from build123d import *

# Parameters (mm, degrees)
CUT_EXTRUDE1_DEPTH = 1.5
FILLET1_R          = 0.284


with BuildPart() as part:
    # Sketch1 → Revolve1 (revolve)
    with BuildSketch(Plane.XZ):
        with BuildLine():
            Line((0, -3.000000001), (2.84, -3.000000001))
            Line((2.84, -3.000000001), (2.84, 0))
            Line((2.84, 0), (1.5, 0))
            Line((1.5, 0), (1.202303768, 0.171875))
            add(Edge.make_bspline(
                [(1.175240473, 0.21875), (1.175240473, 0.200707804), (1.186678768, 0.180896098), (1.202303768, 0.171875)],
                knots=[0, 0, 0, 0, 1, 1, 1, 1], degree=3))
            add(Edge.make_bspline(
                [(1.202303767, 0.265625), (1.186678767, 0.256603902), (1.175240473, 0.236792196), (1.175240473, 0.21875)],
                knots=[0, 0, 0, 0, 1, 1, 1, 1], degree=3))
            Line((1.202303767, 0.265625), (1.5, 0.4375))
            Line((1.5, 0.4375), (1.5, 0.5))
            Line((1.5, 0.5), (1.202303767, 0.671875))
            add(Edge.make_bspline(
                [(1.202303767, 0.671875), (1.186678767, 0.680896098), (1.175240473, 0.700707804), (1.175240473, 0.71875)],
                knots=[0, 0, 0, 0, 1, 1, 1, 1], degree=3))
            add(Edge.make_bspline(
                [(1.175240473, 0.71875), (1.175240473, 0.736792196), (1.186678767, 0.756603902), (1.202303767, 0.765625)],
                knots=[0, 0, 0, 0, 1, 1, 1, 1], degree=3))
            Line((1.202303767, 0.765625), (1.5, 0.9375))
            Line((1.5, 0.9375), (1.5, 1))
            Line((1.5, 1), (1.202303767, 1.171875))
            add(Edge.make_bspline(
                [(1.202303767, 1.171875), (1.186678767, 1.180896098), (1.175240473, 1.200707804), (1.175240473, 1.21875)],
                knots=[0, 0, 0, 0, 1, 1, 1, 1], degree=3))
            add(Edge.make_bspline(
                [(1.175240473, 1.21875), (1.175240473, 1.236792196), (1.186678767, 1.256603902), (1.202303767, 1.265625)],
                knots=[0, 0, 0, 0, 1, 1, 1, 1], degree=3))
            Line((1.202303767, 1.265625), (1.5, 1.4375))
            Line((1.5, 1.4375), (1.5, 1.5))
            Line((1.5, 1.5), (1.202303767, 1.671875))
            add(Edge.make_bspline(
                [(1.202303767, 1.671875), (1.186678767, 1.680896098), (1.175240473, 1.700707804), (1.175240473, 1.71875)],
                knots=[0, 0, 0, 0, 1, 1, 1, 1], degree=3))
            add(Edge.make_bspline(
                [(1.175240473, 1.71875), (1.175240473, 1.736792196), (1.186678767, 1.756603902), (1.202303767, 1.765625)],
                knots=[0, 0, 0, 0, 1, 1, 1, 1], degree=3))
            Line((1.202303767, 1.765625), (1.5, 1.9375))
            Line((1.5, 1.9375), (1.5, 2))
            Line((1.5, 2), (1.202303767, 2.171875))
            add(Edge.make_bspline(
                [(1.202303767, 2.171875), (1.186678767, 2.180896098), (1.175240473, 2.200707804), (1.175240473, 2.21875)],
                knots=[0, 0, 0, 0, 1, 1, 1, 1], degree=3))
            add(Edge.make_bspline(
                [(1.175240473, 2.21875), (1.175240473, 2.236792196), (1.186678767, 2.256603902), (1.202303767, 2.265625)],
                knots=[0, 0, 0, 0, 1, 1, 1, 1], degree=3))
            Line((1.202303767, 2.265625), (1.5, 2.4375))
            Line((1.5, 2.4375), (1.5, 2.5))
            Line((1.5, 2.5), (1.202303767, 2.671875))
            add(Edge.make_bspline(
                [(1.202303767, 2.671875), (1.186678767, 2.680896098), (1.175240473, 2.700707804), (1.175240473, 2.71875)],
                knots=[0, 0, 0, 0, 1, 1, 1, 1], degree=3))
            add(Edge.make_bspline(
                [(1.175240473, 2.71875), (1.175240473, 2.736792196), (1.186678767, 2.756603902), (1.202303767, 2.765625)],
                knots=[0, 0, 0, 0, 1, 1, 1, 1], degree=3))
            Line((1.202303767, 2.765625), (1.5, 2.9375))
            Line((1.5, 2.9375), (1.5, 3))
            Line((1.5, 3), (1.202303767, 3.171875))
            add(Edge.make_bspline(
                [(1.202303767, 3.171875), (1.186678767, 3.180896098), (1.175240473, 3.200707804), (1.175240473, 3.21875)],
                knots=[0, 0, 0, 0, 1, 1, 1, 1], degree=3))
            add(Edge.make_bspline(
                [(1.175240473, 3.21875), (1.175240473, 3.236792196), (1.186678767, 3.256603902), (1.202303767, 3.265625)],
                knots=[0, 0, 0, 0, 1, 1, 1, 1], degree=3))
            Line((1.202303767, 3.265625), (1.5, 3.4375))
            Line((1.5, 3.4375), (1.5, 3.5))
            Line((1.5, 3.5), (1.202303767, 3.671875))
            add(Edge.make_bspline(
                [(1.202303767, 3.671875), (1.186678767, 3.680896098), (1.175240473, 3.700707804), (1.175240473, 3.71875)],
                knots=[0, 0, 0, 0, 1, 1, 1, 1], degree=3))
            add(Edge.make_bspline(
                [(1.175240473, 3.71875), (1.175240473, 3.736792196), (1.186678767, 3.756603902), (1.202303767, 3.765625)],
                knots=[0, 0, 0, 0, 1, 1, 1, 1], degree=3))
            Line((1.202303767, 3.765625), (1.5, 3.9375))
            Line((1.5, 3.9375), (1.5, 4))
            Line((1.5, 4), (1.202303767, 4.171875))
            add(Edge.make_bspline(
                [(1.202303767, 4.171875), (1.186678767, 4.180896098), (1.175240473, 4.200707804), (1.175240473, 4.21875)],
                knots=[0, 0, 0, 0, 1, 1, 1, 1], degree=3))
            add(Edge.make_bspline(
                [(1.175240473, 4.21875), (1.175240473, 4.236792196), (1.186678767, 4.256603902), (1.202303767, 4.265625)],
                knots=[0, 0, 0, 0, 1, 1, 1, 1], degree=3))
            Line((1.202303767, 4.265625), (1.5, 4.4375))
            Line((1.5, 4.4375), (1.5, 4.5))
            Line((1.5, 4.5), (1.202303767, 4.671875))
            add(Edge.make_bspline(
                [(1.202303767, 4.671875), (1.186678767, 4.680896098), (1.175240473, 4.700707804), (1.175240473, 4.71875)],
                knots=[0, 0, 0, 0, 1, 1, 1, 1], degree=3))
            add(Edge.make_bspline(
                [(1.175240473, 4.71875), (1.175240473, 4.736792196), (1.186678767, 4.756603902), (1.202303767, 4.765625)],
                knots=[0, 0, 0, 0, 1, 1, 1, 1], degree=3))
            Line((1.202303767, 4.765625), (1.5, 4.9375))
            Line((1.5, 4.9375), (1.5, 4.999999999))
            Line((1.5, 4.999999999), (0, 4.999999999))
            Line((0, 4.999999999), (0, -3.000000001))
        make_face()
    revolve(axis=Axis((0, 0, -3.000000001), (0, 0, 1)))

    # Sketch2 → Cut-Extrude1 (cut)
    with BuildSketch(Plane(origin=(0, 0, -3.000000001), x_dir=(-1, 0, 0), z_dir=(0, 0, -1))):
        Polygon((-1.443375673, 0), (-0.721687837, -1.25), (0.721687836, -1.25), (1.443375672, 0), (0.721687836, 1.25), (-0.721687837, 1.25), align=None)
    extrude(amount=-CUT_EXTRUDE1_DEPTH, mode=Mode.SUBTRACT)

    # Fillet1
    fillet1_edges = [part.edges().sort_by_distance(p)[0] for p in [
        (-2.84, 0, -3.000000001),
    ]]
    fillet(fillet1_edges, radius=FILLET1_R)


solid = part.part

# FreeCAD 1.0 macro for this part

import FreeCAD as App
import Part
import Sketcher
Q = App.Units.Quantity


def edges_at(feature, points):
    """Names of the edges that pass closest to the given points."""
    edges = feature.Shape.Edges
    near = lambda p: min(range(len(edges)), key=lambda i: edges[i].distToShape(Part.Vertex(*p))[0])
    return sorted({f"Edge{near(p) + 1}" for p in points})


def add_polygon(sketch, points):
    """Adds a closed chain of lines whose ends are joined by coincident constraints."""
    first, n = sketch.GeometryCount, len(points)
    for a, b in zip(points, points[1:] + points[:1]):
        sketch.addGeometry(Part.LineSegment(App.Vector(*a, 0), App.Vector(*b, 0)), False)
    for i in range(n):
        sketch.addConstraint(Sketcher.Constraint("Coincident", first + i, 2, first + (i + 1) % n, 1))

doc = App.newDocument("Part")
params = doc.addObject("Spreadsheet::Sheet", "Params")
for row, (alias, value) in enumerate([
    ("sketch1_height", "3 mm"),
    ("sketch1_height2", "8 mm"),
    ("sketch1_width", "1.5 mm"),
    ("sketch1_width2", "2.84 mm"),
    ("sketch1_width3", "1.34 mm"),
    ("revolution_angle", "360 deg"),
    ("pocket1_length", "1.5 mm"),
    ("fillet_radius", "0.284 mm"),
], start=1):
    params.set(f"A{row}", alias)
    params.set(f"B{row}", "=" + value)
    params.setAlias(f"B{row}", alias)

body = doc.addObject("PartDesign::Body", "Body")

sketch1 = body.newObject("Sketcher::SketchObject", "Sketch")
sketch1.AttachmentSupport = (doc.getObject("XZ_Plane"), [""])
sketch1.MapMode = "FlatFace"
sketch1.addGeometry([
    Part.LineSegment(App.Vector(0, -3, 0), App.Vector(2.84, -3, 0)),
    Part.LineSegment(App.Vector(2.84, -3, 0), App.Vector(2.84, 0, 0)),
    Part.LineSegment(App.Vector(2.84, 0, 0), App.Vector(1.5, 0, 0)),
    Part.LineSegment(App.Vector(1.5, 0, 0), App.Vector(1.202304, 0.171875, 0)),
    Part.BSplineCurve([App.Vector(1.202304, 0.265625, 0), App.Vector(1.186679, 0.256604, 0), App.Vector(1.17524, 0.236792, 0), App.Vector(1.17524, 0.200708, 0), App.Vector(1.186679, 0.180896, 0), App.Vector(1.202304, 0.171875, 0)], [4, 2, 4], [0, 1, 2], False, 3, [1, 1, 1, 1, 1, 1], False),
    Part.LineSegment(App.Vector(1.202304, 0.265625, 0), App.Vector(1.5, 0.4375, 0)),
    Part.LineSegment(App.Vector(1.5, 0.4375, 0), App.Vector(1.5, 0.5, 0)),
    Part.LineSegment(App.Vector(1.5, 0.5, 0), App.Vector(1.202304, 0.671875, 0)),
    Part.BSplineCurve([App.Vector(1.202304, 0.671875, 0), App.Vector(1.186679, 0.680896, 0), App.Vector(1.17524, 0.700708, 0), App.Vector(1.17524, 0.736792, 0), App.Vector(1.186679, 0.756604, 0), App.Vector(1.202304, 0.765625, 0)], [4, 2, 4], [0, 1, 2], False, 3, [1, 1, 1, 1, 1, 1], False),
    Part.LineSegment(App.Vector(1.202304, 0.765625, 0), App.Vector(1.5, 0.9375, 0)),
    Part.LineSegment(App.Vector(1.5, 0.9375, 0), App.Vector(1.5, 1, 0)),
    Part.LineSegment(App.Vector(1.5, 1, 0), App.Vector(1.202304, 1.171875, 0)),
    Part.BSplineCurve([App.Vector(1.202304, 1.171875, 0), App.Vector(1.186679, 1.180896, 0), App.Vector(1.17524, 1.200708, 0), App.Vector(1.17524, 1.236792, 0), App.Vector(1.186679, 1.256604, 0), App.Vector(1.202304, 1.265625, 0)], [4, 2, 4], [0, 1, 2], False, 3, [1, 1, 1, 1, 1, 1], False),
    Part.LineSegment(App.Vector(1.202304, 1.265625, 0), App.Vector(1.5, 1.4375, 0)),
    Part.LineSegment(App.Vector(1.5, 1.4375, 0), App.Vector(1.5, 1.5, 0)),
    Part.LineSegment(App.Vector(1.5, 1.5, 0), App.Vector(1.202304, 1.671875, 0)),
    Part.BSplineCurve([App.Vector(1.202304, 1.671875, 0), App.Vector(1.186679, 1.680896, 0), App.Vector(1.17524, 1.700708, 0), App.Vector(1.17524, 1.736792, 0), App.Vector(1.186679, 1.756604, 0), App.Vector(1.202304, 1.765625, 0)], [4, 2, 4], [0, 1, 2], False, 3, [1, 1, 1, 1, 1, 1], False),
    Part.LineSegment(App.Vector(1.202304, 1.765625, 0), App.Vector(1.5, 1.9375, 0)),
    Part.LineSegment(App.Vector(1.5, 1.9375, 0), App.Vector(1.5, 2, 0)),
    Part.LineSegment(App.Vector(1.5, 2, 0), App.Vector(1.202304, 2.171875, 0)),
    Part.BSplineCurve([App.Vector(1.202304, 2.171875, 0), App.Vector(1.186679, 2.180896, 0), App.Vector(1.17524, 2.200708, 0), App.Vector(1.17524, 2.236792, 0), App.Vector(1.186679, 2.256604, 0), App.Vector(1.202304, 2.265625, 0)], [4, 2, 4], [0, 1, 2], False, 3, [1, 1, 1, 1, 1, 1], False),
    Part.LineSegment(App.Vector(1.202304, 2.265625, 0), App.Vector(1.5, 2.4375, 0)),
    Part.LineSegment(App.Vector(1.5, 2.4375, 0), App.Vector(1.5, 2.5, 0)),
    Part.LineSegment(App.Vector(1.5, 2.5, 0), App.Vector(1.202304, 2.671875, 0)),
    Part.BSplineCurve([App.Vector(1.202304, 2.671875, 0), App.Vector(1.186679, 2.680896, 0), App.Vector(1.17524, 2.700708, 0), App.Vector(1.17524, 2.736792, 0), App.Vector(1.186679, 2.756604, 0), App.Vector(1.202304, 2.765625, 0)], [4, 2, 4], [0, 1, 2], False, 3, [1, 1, 1, 1, 1, 1], False),
    Part.LineSegment(App.Vector(1.202304, 2.765625, 0), App.Vector(1.5, 2.9375, 0)),
    Part.LineSegment(App.Vector(1.5, 2.9375, 0), App.Vector(1.5, 3, 0)),
    Part.LineSegment(App.Vector(1.5, 3, 0), App.Vector(1.202304, 3.171875, 0)),
    Part.BSplineCurve([App.Vector(1.202304, 3.171875, 0), App.Vector(1.186679, 3.180896, 0), App.Vector(1.17524, 3.200708, 0), App.Vector(1.17524, 3.236792, 0), App.Vector(1.186679, 3.256604, 0), App.Vector(1.202304, 3.265625, 0)], [4, 2, 4], [0, 1, 2], False, 3, [1, 1, 1, 1, 1, 1], False),
    Part.LineSegment(App.Vector(1.202304, 3.265625, 0), App.Vector(1.5, 3.4375, 0)),
    Part.LineSegment(App.Vector(1.5, 3.4375, 0), App.Vector(1.5, 3.5, 0)),
    Part.LineSegment(App.Vector(1.5, 3.5, 0), App.Vector(1.202304, 3.671875, 0)),
    Part.BSplineCurve([App.Vector(1.202304, 3.671875, 0), App.Vector(1.186679, 3.680896, 0), App.Vector(1.17524, 3.700708, 0), App.Vector(1.17524, 3.736792, 0), App.Vector(1.186679, 3.756604, 0), App.Vector(1.202304, 3.765625, 0)], [4, 2, 4], [0, 1, 2], False, 3, [1, 1, 1, 1, 1, 1], False),
    Part.LineSegment(App.Vector(1.202304, 3.765625, 0), App.Vector(1.5, 3.9375, 0)),
    Part.LineSegment(App.Vector(1.5, 3.9375, 0), App.Vector(1.5, 4, 0)),
    Part.LineSegment(App.Vector(1.5, 4, 0), App.Vector(1.202304, 4.171875, 0)),
    Part.BSplineCurve([App.Vector(1.202304, 4.171875, 0), App.Vector(1.186679, 4.180896, 0), App.Vector(1.17524, 4.200708, 0), App.Vector(1.17524, 4.236792, 0), App.Vector(1.186679, 4.256604, 0), App.Vector(1.202304, 4.265625, 0)], [4, 2, 4], [0, 1, 2], False, 3, [1, 1, 1, 1, 1, 1], False),
    Part.LineSegment(App.Vector(1.202304, 4.265625, 0), App.Vector(1.5, 4.4375, 0)),
    Part.LineSegment(App.Vector(1.5, 4.4375, 0), App.Vector(1.5, 4.5, 0)),
    Part.LineSegment(App.Vector(1.5, 4.5, 0), App.Vector(1.202304, 4.671875, 0)),
    Part.BSplineCurve([App.Vector(1.202304, 4.671875, 0), App.Vector(1.186679, 4.680896, 0), App.Vector(1.17524, 4.700708, 0), App.Vector(1.17524, 4.736792, 0), App.Vector(1.186679, 4.756604, 0), App.Vector(1.202304, 4.765625, 0)], [4, 2, 4], [0, 1, 2], False, 3, [1, 1, 1, 1, 1, 1], False),
    Part.LineSegment(App.Vector(1.202304, 4.765625, 0), App.Vector(1.5, 4.9375, 0)),
    Part.LineSegment(App.Vector(1.5, 4.9375, 0), App.Vector(1.5, 5, 0)),
    Part.LineSegment(App.Vector(1.5, 5, 0), App.Vector(0, 5, 0)),
    Part.LineSegment(App.Vector(0, 5, 0), App.Vector(0, -3, 0)),
], False)
sketch1.addConstraint([
    Sketcher.Constraint("Block", 4),
    Sketcher.Constraint("Block", 8),
    Sketcher.Constraint("Block", 12),
    Sketcher.Constraint("Block", 16),
    Sketcher.Constraint("Block", 20),
    Sketcher.Constraint("Block", 24),
    Sketcher.Constraint("Block", 28),
    Sketcher.Constraint("Block", 32),
    Sketcher.Constraint("Block", 36),
    Sketcher.Constraint("Block", 40),
    Sketcher.Constraint("Coincident", 0, 2, 1, 1),
    Sketcher.Constraint("Coincident", 1, 2, 2, 1),
    Sketcher.Constraint("Coincident", 2, 2, 3, 1),
    Sketcher.Constraint("Coincident", 3, 2, 4, 2),
    Sketcher.Constraint("Coincident", 4, 1, 5, 1),
    Sketcher.Constraint("Coincident", 5, 2, 6, 1),
    Sketcher.Constraint("Coincident", 6, 2, 7, 1),
    Sketcher.Constraint("Coincident", 7, 2, 8, 1),
    Sketcher.Constraint("Coincident", 8, 2, 9, 1),
    Sketcher.Constraint("Coincident", 9, 2, 10, 1),
    Sketcher.Constraint("Coincident", 10, 2, 11, 1),
    Sketcher.Constraint("Coincident", 11, 2, 12, 1),
    Sketcher.Constraint("Coincident", 12, 2, 13, 1),
    Sketcher.Constraint("Coincident", 13, 2, 14, 1),
    Sketcher.Constraint("Coincident", 14, 2, 15, 1),
    Sketcher.Constraint("Coincident", 15, 2, 16, 1),
    Sketcher.Constraint("Coincident", 16, 2, 17, 1),
    Sketcher.Constraint("Coincident", 17, 2, 18, 1),
    Sketcher.Constraint("Coincident", 18, 2, 19, 1),
    Sketcher.Constraint("Coincident", 19, 2, 20, 1),
    Sketcher.Constraint("Coincident", 20, 2, 21, 1),
    Sketcher.Constraint("Coincident", 21, 2, 22, 1),
    Sketcher.Constraint("Coincident", 22, 2, 23, 1),
    Sketcher.Constraint("Coincident", 23, 2, 24, 1),
    Sketcher.Constraint("Coincident", 24, 2, 25, 1),
    Sketcher.Constraint("Coincident", 25, 2, 26, 1),
    Sketcher.Constraint("Coincident", 26, 2, 27, 1),
    Sketcher.Constraint("Coincident", 27, 2, 28, 1),
    Sketcher.Constraint("Coincident", 28, 2, 29, 1),
    Sketcher.Constraint("Coincident", 29, 2, 30, 1),
    Sketcher.Constraint("Coincident", 30, 2, 31, 1),
    Sketcher.Constraint("Coincident", 31, 2, 32, 1),
    Sketcher.Constraint("Coincident", 32, 2, 33, 1),
    Sketcher.Constraint("Coincident", 33, 2, 34, 1),
    Sketcher.Constraint("Coincident", 34, 2, 35, 1),
    Sketcher.Constraint("Coincident", 35, 2, 36, 1),
    Sketcher.Constraint("Coincident", 36, 2, 37, 1),
    Sketcher.Constraint("Coincident", 37, 2, 38, 1),
    Sketcher.Constraint("Coincident", 38, 2, 39, 1),
    Sketcher.Constraint("Coincident", 39, 2, 40, 1),
    Sketcher.Constraint("Coincident", 40, 2, 41, 1),
    Sketcher.Constraint("Coincident", 41, 2, 42, 1),
    Sketcher.Constraint("Coincident", 42, 2, 43, 1),
    Sketcher.Constraint("Coincident", 43, 2, 44, 1),
    Sketcher.Constraint("Coincident", 44, 2, 0, 1),
    Sketcher.Constraint("Horizontal", 0),
    Sketcher.Constraint("Vertical", 1),
    Sketcher.Constraint("Horizontal", 2),
    Sketcher.Constraint("Vertical", 6),
    Sketcher.Constraint("Vertical", 10),
    Sketcher.Constraint("Vertical", 14),
    Sketcher.Constraint("Vertical", 18),
    Sketcher.Constraint("Vertical", 22),
    Sketcher.Constraint("Vertical", 26),
    Sketcher.Constraint("Vertical", 30),
    Sketcher.Constraint("Vertical", 34),
    Sketcher.Constraint("Vertical", 38),
    Sketcher.Constraint("Vertical", 42),
    Sketcher.Constraint("Horizontal", 43),
    Sketcher.Constraint("Vertical", 44),
    Sketcher.Constraint("PointOnObject", 1, 2, -1),
    Sketcher.Constraint("PointOnObject", 43, 2, -2),
    Sketcher.Constraint("DistanceY", 1, 1, 1, 2, Q("3 mm")),
    Sketcher.Constraint("DistanceY", 44, 2, 44, 1, Q("8 mm")),
    Sketcher.Constraint("DistanceX", 43, 2, 43, 1, Q("1.5 mm")),
    Sketcher.Constraint("DistanceY", -1, 1, 10, 2, Q("1 mm")),
    Sketcher.Constraint("DistanceY", -1, 1, 18, 2, Q("2 mm")),
    Sketcher.Constraint("DistanceY", -1, 1, 26, 2, Q("3 mm")),
    Sketcher.Constraint("DistanceY", -1, 1, 34, 2, Q("4 mm")),
    Sketcher.Constraint("DistanceX", 0, 1, 0, 2, Q("2.84 mm")),
    Sketcher.Constraint("DistanceX", 2, 2, 2, 1, Q("1.34 mm")),
    Sketcher.Constraint("DistanceX", -1, 1, 5, 2, Q("1.5 mm")),
    Sketcher.Constraint("DistanceY", -1, 1, 6, 2, Q("0.5 mm")),
    Sketcher.Constraint("DistanceX", -1, 1, 9, 2, Q("1.5 mm")),
    Sketcher.Constraint("DistanceX", -1, 1, 13, 2, Q("1.5 mm")),
    Sketcher.Constraint("DistanceY", -1, 1, 14, 2, Q("1.5 mm")),
    Sketcher.Constraint("DistanceX", -1, 1, 17, 2, Q("1.5 mm")),
    Sketcher.Constraint("DistanceX", -1, 1, 21, 2, Q("1.5 mm")),
    Sketcher.Constraint("DistanceY", -1, 1, 22, 2, Q("2.5 mm")),
    Sketcher.Constraint("DistanceX", -1, 1, 25, 2, Q("1.5 mm")),
    Sketcher.Constraint("DistanceX", -1, 1, 29, 2, Q("1.5 mm")),
    Sketcher.Constraint("DistanceY", -1, 1, 30, 2, Q("3.5 mm")),
    Sketcher.Constraint("DistanceX", -1, 1, 33, 2, Q("1.5 mm")),
    Sketcher.Constraint("DistanceX", -1, 1, 37, 2, Q("1.5 mm")),
    Sketcher.Constraint("DistanceY", -1, 1, 38, 2, Q("4.5 mm")),
    Sketcher.Constraint("DistanceY", 5, 2, 9, 2, Q("0.5 mm")),
    Sketcher.Constraint("DistanceY", 9, 2, 13, 2, Q("0.5 mm")),
    Sketcher.Constraint("DistanceY", 13, 2, 17, 2, Q("0.5 mm")),
    Sketcher.Constraint("DistanceY", 17, 2, 21, 2, Q("0.5 mm")),
    Sketcher.Constraint("DistanceY", 21, 2, 25, 2, Q("0.5 mm")),
    Sketcher.Constraint("DistanceY", 25, 2, 29, 2, Q("0.5 mm")),
    Sketcher.Constraint("DistanceY", 29, 2, 33, 2, Q("0.5 mm")),
    Sketcher.Constraint("DistanceY", 33, 2, 37, 2, Q("0.5 mm")),
    Sketcher.Constraint("DistanceY", 37, 2, 41, 2, Q("0.5 mm")),
    Sketcher.Constraint("DistanceY", 6, 1, 6, 2, Q("0.0625 mm")),
])
sketch1.setExpression("Constraints[72]", "Params.sketch1_height")
sketch1.setExpression("Constraints[73]", "Params.sketch1_height2")
sketch1.setExpression("Constraints[74]", "Params.sketch1_width")
sketch1.setExpression("Constraints[79]", "Params.sketch1_width2")
sketch1.setExpression("Constraints[80]", "Params.sketch1_width3")
revolution = body.newObject("PartDesign::Revolution", "Revolution")
revolution.Profile = sketch1
revolution.ReferenceAxis = (sketch1, ["V_Axis"])
revolution.setExpression("Angle", "Params.revolution_angle")

sketch2 = body.newObject("Sketcher::SketchObject", "Sketch001")
sketch2.AttachmentSupport = (doc.getObject("XY_Plane"), [""])
sketch2.MapMode = "FlatFace"
sketch2.AttachmentOffset = App.Placement(App.Vector(0, 0, -3), App.Rotation())
add_polygon(sketch2, [(1.4, 0), (0.7, -1.2), (-0.7, -1.2), (-1.4, 0), (-0.7, 1.2), (0.7, 1.2)])
sketch2.addConstraint([
    Sketcher.Constraint("Horizontal", 1),
    Sketcher.Constraint("Horizontal", 4),
    Sketcher.Constraint("Symmetric", 0, 2, 3, 2, -1, 1),
    Sketcher.Constraint("Symmetric", 2, 2, 5, 2, -1, 1),
    Sketcher.Constraint("PointOnObject", 2, 2, -1),
    Sketcher.Constraint("Parallel", 2, 5),
    Sketcher.Constraint("Vertical", 1, 2, 3, 2),
    Sketcher.Constraint("Angle", 0, Q("-120 deg")),
    Sketcher.Constraint("DistanceY", 1, 2, 3, 2, Q("2.5 mm")),
    Sketcher.Constraint("DistanceX", 1, 2, 1, 1, Q("1.443376 mm")),
])
pocket1 = body.newObject("PartDesign::Pocket", "Pocket")
pocket1.Profile = sketch2
pocket1.setExpression("Length", "Params.pocket1_length")
pocket1.Reversed = True
doc.recompute()

fillet = body.newObject("PartDesign::Fillet", "Fillet")
fillet.Base = (pocket1, edges_at(pocket1, [(-2.84, 0, -3)]))
fillet.setExpression("Radius", "Params.fillet_radius")

doc.recompute()
